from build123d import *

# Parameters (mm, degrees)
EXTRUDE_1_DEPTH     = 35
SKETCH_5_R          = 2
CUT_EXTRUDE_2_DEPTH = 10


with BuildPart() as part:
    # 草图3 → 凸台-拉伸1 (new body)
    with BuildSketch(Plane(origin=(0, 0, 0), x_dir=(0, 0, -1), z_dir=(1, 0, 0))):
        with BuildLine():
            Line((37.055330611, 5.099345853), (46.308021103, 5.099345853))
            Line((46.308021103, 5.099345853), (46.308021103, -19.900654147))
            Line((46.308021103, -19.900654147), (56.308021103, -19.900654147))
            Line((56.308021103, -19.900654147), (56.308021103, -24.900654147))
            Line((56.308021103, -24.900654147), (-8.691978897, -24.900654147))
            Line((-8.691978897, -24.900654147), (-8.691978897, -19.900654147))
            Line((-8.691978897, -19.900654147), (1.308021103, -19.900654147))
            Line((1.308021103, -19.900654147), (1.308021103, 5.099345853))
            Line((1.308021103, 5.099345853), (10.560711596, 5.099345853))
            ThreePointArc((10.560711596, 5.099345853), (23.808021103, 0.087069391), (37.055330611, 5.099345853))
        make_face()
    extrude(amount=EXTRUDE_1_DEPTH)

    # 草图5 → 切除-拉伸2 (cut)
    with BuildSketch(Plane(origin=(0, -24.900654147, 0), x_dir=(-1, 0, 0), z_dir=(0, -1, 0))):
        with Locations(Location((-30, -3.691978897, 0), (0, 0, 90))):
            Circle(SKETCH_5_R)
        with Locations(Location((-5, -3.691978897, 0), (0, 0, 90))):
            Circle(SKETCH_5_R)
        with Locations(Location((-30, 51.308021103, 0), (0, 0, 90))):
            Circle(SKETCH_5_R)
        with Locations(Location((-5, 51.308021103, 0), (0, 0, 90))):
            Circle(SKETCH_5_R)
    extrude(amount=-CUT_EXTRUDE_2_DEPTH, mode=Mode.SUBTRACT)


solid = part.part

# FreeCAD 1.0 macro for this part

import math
import FreeCAD as App
import Part
import Sketcher

V = App.Vector

doc = App.newDocument("Part")
body = doc.addObject("PartDesign::Body", "Body")

# Sketch on YZ plane
sketch1 = doc.addObject("Sketcher::SketchObject", "Sketch")
body.addObject(sketch1)
sketch1.AttachmentSupport = (doc.YZ_Plane, [""])
sketch1.MapMode = "FlatFace"
sketch1.addGeometry([
    Part.LineSegment(V(5, -46, 0), V(5, -37, 0)),  # 0
    Part.ArcOfCircle(Part.Circle(V(20, -24, 0), V(0, 0, 1), 20), math.radians(139), math.radians(221)),  # 1
    Part.LineSegment(V(5, -11, 0), V(5, -1, 0)),  # 2
    Part.LineSegment(V(5, -1, 0), V(-20, -1, 0)),  # 3
    Part.LineSegment(V(-20, -1, 0), V(-20, 9, 0)),  # 4
    Part.LineSegment(V(-20, 9, 0), V(-25, 9, 0)),  # 5
    Part.LineSegment(V(-25, 9, 0), V(-25, -56, 0)),  # 6
    Part.LineSegment(V(-25, -56, 0), V(-20, -56, 0)),  # 7
    Part.LineSegment(V(-20, -56, 0), V(-20, -46, 0)),  # 8
    Part.LineSegment(V(-20, -46, 0), V(5, -46, 0)),  # 9
], False)
sketch1.addConstraint([
    Sketcher.Constraint("Coincident", 0, 2, 1, 2),
    Sketcher.Constraint("Coincident", 1, 1, 2, 1),
    Sketcher.Constraint("Coincident", 2, 2, 3, 1),
    Sketcher.Constraint("Coincident", 3, 2, 4, 1),
    Sketcher.Constraint("Coincident", 4, 2, 5, 1),
    Sketcher.Constraint("Coincident", 5, 2, 6, 1),
    Sketcher.Constraint("Coincident", 6, 2, 7, 1),
    Sketcher.Constraint("Coincident", 7, 2, 8, 1),
    Sketcher.Constraint("Coincident", 8, 2, 9, 1),
    Sketcher.Constraint("Coincident", 9, 2, 0, 1),
    Sketcher.Constraint("Vertical", 0),
    Sketcher.Constraint("Vertical", 2),
    Sketcher.Constraint("Horizontal", 3),
    Sketcher.Constraint("Vertical", 4),
    Sketcher.Constraint("Horizontal", 5),
    Sketcher.Constraint("Vertical", 6),
    Sketcher.Constraint("Horizontal", 7),
    Sketcher.Constraint("Vertical", 8),
    Sketcher.Constraint("Horizontal", 9),
    Sketcher.Constraint("Vertical", 0, 2, 1, 1),
    Sketcher.Constraint("Vertical", 4, 2, 7, 2),
    Sketcher.Constraint("Equal", 0, 2),
    Sketcher.Constraint("Equal", 4, 8),
    Sketcher.Constraint("DistanceX", 3, 2, 3, 1, 25.0),
    Sketcher.Constraint("DistanceX", 5, 2, 5, 1, 5.0),
    Sketcher.Constraint("DistanceY", 4, 1, 4, 2, 10.0),
    Sketcher.Constraint("DistanceY", 6, 2, 6, 1, 65.0),
    Sketcher.Constraint("DistanceX", 0, 2, 1, 3, 15.0),
    Sketcher.Constraint("Radius", 1, 20.012276),
    Sketcher.Constraint("DistanceY", 1, 3, -1, 1, 23.808021),
    Sketcher.Constraint("DistanceX", -1, 1, 1, 3, 20.099346),
])
pad1 = doc.addObject("PartDesign::Pad", "Pad")
body.addObject(pad1)
pad1.Profile = sketch1
pad1.Length = 35

# Sketch on XZ plane
sketch2 = doc.addObject("Sketcher::SketchObject", "Sketch001")
body.addObject(sketch2)
sketch2.AttachmentSupport = (doc.XZ_Plane, [""])
sketch2.MapMode = "FlatFace"
sketch2.AttachmentOffset = App.Placement(V(0, 0, 24.900654), App.Rotation())
sketch2.addGeometry([
    Part.Circle(V(30, 3.7, 0), V(0, 0, 1), 2),
    Part.Circle(V(5, 3.7, 0), V(0, 0, 1), 2),
    Part.Circle(V(30, -51.3, 0), V(0, 0, 1), 2),
    Part.Circle(V(5, -51.3, 0), V(0, 0, 1), 2),
], False)
sketch2.addConstraint([
    Sketcher.Constraint("Equal", 0, 1),
    Sketcher.Constraint("Equal", 1, 2),
    Sketcher.Constraint("Equal", 2, 3),
    Sketcher.Constraint("Horizontal", 0, 3, 1, 3),
    Sketcher.Constraint("Horizontal", 2, 3, 3, 3),
    Sketcher.Constraint("Vertical", 0, 3, 2, 3),
    Sketcher.Constraint("Vertical", 1, 3, 3, 3),
    Sketcher.Constraint("Diameter", 0, 4.0),
    Sketcher.Constraint("DistanceX", -1, 1, 0, 3, 30.0),
    Sketcher.Constraint("DistanceX", -1, 1, 1, 3, 5.0),
    Sketcher.Constraint("DistanceY", 2, 3, 0, 3, 55.0),
    Sketcher.Constraint("DistanceY", -1, 1, 0, 3, 3.691979),
])
pocket1 = doc.addObject("PartDesign::Pocket", "Pocket")
body.addObject(pocket1)
pocket1.Profile = sketch2
pocket1.Length = 10

doc.recompute()
